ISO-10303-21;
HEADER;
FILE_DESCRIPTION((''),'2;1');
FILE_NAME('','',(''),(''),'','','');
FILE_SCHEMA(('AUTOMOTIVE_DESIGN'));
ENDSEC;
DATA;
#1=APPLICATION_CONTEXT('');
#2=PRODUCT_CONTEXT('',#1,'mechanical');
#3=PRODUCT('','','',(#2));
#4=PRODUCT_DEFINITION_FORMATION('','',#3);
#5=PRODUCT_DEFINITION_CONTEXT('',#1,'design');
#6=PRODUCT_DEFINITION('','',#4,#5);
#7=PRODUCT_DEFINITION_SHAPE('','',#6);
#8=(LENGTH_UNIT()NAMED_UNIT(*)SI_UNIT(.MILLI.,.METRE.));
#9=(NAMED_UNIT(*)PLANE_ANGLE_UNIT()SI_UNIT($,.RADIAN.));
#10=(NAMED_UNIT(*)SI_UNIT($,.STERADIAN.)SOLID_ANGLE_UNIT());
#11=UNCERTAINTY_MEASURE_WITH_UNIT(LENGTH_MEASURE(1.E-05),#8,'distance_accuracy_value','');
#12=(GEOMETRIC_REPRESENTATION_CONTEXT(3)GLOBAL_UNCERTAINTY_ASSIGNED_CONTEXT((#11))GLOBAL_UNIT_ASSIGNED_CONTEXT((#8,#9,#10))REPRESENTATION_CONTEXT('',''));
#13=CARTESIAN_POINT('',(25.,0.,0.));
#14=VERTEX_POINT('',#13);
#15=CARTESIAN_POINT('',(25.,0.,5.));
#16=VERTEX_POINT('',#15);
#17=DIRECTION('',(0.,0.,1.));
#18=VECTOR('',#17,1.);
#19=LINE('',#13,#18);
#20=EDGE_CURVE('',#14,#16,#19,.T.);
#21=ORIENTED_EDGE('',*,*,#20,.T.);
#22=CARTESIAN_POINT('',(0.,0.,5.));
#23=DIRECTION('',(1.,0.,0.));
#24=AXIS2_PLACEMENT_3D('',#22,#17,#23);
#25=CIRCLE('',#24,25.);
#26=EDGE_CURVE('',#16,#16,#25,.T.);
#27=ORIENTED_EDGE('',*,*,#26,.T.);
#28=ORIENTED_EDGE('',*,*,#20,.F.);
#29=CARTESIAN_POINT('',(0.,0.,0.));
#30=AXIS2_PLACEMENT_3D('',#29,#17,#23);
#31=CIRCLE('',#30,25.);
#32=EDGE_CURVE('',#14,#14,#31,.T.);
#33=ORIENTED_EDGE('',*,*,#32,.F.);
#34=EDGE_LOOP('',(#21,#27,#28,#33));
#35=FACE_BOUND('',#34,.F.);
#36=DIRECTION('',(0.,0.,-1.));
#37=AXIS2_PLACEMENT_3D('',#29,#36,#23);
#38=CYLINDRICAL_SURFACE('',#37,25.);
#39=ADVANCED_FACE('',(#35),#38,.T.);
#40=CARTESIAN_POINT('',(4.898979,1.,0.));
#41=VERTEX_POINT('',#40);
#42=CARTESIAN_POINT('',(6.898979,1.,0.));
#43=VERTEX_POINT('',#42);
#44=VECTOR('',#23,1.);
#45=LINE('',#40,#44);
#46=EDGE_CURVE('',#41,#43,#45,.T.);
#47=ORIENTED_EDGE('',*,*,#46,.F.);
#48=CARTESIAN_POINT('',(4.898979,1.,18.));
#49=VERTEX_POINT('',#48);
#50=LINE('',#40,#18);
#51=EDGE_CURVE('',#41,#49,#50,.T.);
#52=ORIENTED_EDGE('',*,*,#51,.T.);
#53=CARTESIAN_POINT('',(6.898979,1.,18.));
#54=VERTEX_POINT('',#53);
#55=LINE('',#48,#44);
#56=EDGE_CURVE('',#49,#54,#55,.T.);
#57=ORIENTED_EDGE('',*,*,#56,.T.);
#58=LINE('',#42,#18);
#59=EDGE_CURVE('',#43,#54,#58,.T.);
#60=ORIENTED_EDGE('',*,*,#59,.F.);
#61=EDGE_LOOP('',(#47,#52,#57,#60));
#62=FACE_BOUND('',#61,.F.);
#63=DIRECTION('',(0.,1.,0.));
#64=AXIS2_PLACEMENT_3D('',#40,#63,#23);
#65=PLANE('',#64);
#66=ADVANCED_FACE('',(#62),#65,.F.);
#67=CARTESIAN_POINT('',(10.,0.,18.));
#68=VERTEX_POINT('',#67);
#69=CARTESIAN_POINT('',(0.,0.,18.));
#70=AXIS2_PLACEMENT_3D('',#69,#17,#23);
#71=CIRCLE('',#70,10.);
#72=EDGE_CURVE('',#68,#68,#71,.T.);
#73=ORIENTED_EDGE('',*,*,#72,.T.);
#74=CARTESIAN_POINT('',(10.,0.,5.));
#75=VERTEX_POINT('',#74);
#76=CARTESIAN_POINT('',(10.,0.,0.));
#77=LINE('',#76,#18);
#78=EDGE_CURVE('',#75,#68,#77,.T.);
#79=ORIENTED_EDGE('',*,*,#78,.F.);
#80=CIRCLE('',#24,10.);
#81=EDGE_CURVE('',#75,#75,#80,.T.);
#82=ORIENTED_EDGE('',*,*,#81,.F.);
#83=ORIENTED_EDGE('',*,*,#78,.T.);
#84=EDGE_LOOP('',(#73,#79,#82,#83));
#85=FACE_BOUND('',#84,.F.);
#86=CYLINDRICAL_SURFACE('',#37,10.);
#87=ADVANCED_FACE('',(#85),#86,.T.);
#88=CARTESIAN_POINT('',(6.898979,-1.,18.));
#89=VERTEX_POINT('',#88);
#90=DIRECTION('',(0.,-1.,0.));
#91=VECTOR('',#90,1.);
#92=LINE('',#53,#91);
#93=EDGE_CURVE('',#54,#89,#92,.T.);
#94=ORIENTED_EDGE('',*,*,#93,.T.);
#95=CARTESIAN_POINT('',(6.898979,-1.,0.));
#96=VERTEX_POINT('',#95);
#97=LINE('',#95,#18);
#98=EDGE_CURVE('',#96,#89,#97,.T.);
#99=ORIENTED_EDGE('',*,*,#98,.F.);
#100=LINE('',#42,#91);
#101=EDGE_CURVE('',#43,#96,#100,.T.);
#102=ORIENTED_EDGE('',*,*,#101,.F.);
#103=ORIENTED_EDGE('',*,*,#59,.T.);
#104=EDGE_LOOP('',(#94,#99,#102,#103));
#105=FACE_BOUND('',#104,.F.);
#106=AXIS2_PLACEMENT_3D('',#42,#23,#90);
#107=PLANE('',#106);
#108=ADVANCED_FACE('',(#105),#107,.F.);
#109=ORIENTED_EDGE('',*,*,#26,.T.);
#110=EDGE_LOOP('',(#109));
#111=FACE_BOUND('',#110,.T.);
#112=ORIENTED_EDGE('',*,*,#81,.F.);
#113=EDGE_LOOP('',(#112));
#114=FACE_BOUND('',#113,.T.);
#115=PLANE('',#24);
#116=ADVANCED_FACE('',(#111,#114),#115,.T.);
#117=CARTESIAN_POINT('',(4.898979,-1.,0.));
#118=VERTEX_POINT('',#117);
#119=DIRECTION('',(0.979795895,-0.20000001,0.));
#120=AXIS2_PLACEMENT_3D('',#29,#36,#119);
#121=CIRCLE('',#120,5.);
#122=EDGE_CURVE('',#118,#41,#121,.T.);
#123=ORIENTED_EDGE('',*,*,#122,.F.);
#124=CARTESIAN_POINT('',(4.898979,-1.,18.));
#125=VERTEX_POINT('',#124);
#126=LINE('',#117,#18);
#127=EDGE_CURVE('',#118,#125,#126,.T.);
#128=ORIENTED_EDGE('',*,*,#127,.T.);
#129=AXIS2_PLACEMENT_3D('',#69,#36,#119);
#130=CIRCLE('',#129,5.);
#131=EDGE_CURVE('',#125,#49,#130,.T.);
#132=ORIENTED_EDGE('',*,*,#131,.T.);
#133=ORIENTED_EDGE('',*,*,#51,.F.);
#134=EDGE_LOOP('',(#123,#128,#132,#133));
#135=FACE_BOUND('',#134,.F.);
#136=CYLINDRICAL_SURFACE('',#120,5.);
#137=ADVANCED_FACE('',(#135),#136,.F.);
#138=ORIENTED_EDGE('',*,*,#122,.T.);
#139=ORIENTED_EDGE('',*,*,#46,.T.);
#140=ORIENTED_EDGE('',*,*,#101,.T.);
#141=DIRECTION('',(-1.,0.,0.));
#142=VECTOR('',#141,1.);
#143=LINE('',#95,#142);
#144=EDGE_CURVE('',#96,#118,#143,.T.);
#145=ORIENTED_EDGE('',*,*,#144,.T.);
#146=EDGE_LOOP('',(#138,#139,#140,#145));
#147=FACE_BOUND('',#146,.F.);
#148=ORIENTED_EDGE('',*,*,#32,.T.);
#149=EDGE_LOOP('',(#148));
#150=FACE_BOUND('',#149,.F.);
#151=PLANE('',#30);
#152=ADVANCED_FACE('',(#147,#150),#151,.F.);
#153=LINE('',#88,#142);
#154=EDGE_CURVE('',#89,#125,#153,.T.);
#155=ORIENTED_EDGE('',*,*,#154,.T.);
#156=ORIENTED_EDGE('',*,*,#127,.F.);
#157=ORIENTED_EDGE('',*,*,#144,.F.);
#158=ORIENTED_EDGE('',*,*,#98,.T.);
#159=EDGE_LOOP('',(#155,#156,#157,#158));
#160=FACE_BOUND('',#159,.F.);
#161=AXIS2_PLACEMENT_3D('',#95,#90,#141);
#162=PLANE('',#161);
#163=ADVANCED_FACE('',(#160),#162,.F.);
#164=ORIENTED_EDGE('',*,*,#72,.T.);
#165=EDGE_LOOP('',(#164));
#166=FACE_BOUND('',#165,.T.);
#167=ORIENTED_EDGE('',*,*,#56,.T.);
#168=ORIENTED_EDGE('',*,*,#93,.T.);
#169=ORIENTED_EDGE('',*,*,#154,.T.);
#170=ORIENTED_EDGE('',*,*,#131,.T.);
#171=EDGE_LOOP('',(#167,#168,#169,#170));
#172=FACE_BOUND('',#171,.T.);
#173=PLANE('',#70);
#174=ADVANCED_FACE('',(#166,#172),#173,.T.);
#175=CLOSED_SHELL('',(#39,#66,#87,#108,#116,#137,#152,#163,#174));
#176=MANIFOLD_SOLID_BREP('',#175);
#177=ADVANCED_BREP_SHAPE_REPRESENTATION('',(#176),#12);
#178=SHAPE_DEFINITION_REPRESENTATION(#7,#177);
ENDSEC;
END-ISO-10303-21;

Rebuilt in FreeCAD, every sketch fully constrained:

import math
import FreeCAD as App
import Part
import Sketcher
from FreeCAD import Vector

doc = App.newDocument("Part")
body = doc.addObject("PartDesign::Body", "Body")

sketch1 = body.newObject("Sketcher::SketchObject", "Sketch")
sketch1.AttachmentSupport = (doc.getObject("XY_Plane"), [""])
sketch1.MapMode = "FlatFace"
sketch1.addGeometry(Part.Circle(Vector(0, 0, 0), Vector(0, 0, 1), 10), False)
sketch1.addGeometry(Part.LineSegment(Vector(6.898979, -1, 0), Vector(4.898979, -1, 0)), False)
sketch1.addGeometry(Part.ArcOfCircle(Part.Circle(Vector(0, 0, 0), Vector(0, 0, 1), 5), math.radians(11.53696), math.radians(348.46304)), False)
sketch1.addGeometry(Part.LineSegment(Vector(4.898979, 1, 0), Vector(6.898979, 1, 0)), False)
sketch1.addGeometry(Part.LineSegment(Vector(6.898979, 1, 0), Vector(6.898979, -1, 0)), False)
sketch1.addConstraint(Sketcher.Constraint("Coincident", 1, 2, 2, 2))
sketch1.addConstraint(Sketcher.Constraint("Coincident", 2, 1, 3, 1))
sketch1.addConstraint(Sketcher.Constraint("Coincident", 3, 2, 4, 1))
sketch1.addConstraint(Sketcher.Constraint("Coincident", 4, 2, 1, 1))
sketch1.addConstraint(Sketcher.Constraint("Horizontal", 1))
sketch1.addConstraint(Sketcher.Constraint("Horizontal", 3))
sketch1.addConstraint(Sketcher.Constraint("Vertical", 4))
sketch1.addConstraint(Sketcher.Constraint("Coincident", 0, 3, -1, 1))
sketch1.addConstraint(Sketcher.Constraint("Coincident", 2, 3, -1, 1))
sketch1.addConstraint(Sketcher.Constraint("Vertical", 1, 2, 2, 1))
sketch1.addConstraint(Sketcher.Constraint("Equal", 3, 4))
sketch1.addConstraint(Sketcher.Constraint("Diameter", 0, 20.0))
sketch1.addConstraint(Sketcher.Constraint("Radius", 2, 5.0))
sketch1.addConstraint(Sketcher.Constraint("DistanceX", 1, 2, 1, 1, 2.0))
pad1 = body.newObject("PartDesign::Pad", "Pad")
pad1.Profile = sketch1
pad1.Length = 18

sketch2 = body.newObject("Sketcher::SketchObject", "Sketch001")
sketch2.AttachmentSupport = (doc.getObject("XY_Plane"), [""])
sketch2.MapMode = "FlatFace"
sketch2.addGeometry(Part.Circle(Vector(0, 0, 0), Vector(0, 0, 1), 25), False)
sketch2.addGeometry(Part.Circle(Vector(0, 0, 0), Vector(0, 0, 1), 10), False)
sketch2.addConstraint(Sketcher.Constraint("Coincident", 0, 3, -1, 1))
sketch2.addConstraint(Sketcher.Constraint("Coincident", 1, 3, -1, 1))
sketch2.addConstraint(Sketcher.Constraint("Diameter", 0, 50.0))
sketch2.addConstraint(Sketcher.Constraint("Diameter", 1, 20.0))
pad2 = body.newObject("PartDesign::Pad", "Pad001")
pad2.Profile = sketch2
pad2.Length = 5

doc.recompute()
